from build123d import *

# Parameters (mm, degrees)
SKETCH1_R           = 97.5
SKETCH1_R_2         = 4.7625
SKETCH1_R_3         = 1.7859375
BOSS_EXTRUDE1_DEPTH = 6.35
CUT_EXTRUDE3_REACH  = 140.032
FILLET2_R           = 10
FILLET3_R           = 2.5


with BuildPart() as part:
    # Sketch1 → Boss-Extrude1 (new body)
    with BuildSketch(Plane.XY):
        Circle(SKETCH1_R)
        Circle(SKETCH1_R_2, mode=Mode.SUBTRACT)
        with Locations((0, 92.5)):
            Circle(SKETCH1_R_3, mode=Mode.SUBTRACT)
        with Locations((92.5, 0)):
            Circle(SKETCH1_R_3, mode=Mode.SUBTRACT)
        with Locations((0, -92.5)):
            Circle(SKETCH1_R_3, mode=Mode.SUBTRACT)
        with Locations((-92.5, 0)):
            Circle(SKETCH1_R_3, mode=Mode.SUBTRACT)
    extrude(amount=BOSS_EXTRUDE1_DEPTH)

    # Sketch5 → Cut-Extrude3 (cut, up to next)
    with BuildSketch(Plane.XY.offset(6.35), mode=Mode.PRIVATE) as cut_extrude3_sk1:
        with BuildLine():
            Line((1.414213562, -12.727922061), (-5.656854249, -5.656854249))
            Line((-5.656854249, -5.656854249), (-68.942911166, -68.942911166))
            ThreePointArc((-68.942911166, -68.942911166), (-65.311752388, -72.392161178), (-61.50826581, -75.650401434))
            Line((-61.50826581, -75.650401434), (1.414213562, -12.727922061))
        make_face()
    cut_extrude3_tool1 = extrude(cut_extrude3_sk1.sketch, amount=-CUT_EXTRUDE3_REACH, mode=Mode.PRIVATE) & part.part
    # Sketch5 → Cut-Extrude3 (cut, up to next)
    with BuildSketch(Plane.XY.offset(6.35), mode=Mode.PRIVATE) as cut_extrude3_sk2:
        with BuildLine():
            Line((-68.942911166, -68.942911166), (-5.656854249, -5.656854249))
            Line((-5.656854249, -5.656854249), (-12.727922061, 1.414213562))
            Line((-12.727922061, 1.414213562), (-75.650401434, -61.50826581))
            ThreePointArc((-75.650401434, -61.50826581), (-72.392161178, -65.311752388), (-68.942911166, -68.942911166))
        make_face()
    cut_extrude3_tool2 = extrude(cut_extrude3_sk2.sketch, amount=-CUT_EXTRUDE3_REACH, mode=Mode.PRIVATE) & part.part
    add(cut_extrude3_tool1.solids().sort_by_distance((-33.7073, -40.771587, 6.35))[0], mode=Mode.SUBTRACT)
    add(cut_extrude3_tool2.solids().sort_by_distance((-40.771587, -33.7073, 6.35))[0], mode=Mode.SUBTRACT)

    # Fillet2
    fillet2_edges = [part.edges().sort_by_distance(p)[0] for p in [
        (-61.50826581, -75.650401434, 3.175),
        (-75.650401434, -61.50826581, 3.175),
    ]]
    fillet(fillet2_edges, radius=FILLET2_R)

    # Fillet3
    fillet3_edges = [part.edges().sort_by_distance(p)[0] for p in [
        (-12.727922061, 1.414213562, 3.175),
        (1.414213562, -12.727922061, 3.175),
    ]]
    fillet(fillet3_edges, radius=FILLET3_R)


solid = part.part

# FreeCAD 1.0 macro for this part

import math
import FreeCAD as App
import Part
import Sketcher
Q = App.Units.Quantity


def edges_at(feature, points):
    """Names of the edges that pass closest to the given points."""
    edges = feature.Shape.Edges
    near = lambda p: min(range(len(edges)), key=lambda i: edges[i].distToShape(Part.Vertex(*p))[0])
    return sorted({f"Edge{near(p) + 1}" for p in points})

doc = App.newDocument("Part")
body = doc.addObject("PartDesign::Body", "Body")

# Sketch on XY plane
sketch1 = doc.addObject("Sketcher::SketchObject", "Sketch")
body.addObject(sketch1)
sketch1.AttachmentSupport = (doc.XY_Plane, [""])
sketch1.MapMode = "FlatFace"
sketch1.addGeometry([
    Part.Circle(App.Vector(0, 0, 0), App.Vector(0, 0, 1), 97.5),  # 0
    Part.Circle(App.Vector(0, -92.5, 0), App.Vector(0, 0, 1), 1.8),  # 1
    Part.Circle(App.Vector(-92.5, 0, 0), App.Vector(0, 0, 1), 1.8),  # 2
    Part.Circle(App.Vector(0, 0, 0), App.Vector(0, 0, 1), 4.8),  # 3
    Part.Circle(App.Vector(0, 92.5, 0), App.Vector(0, 0, 1), 1.8),  # 4
    Part.Circle(App.Vector(92.5, 0, 0), App.Vector(0, 0, 1), 1.8),  # 5
], False)
sketch1.addConstraint([
    Sketcher.Constraint("Coincident", 0, 3, -1, 1),
    Sketcher.Constraint("Coincident", 3, 3, -1, 1),
    Sketcher.Constraint("Equal", 1, 2),
    Sketcher.Constraint("Equal", 2, 4),
    Sketcher.Constraint("Equal", 4, 5),
    Sketcher.Constraint("Symmetric", 1, 3, 4, 3, -1, 1),
    Sketcher.Constraint("Symmetric", 2, 3, 5, 3, -1, 1),
    Sketcher.Constraint("PointOnObject", 1, 3, -2),
    Sketcher.Constraint("PointOnObject", 2, 3, -1),
    Sketcher.Constraint("Diameter", 0, Q("195 mm")),
    Sketcher.Constraint("Diameter", 3, Q("9.525 mm")),
    Sketcher.Constraint("DistanceY", 1, 3, 4, 3, Q("185 mm")),
    Sketcher.Constraint("DistanceX", 2, 3, 5, 3, Q("185 mm")),
    Sketcher.Constraint("Diameter", 1, Q("3.571875 mm")),
])
pad1 = doc.addObject("PartDesign::Pad", "Pad")
body.addObject(pad1)
pad1.Profile = sketch1
pad1.Length = 6.35

# Sketch on XY plane
sketch2 = doc.addObject("Sketcher::SketchObject", "Sketch001")
body.addObject(sketch2)
sketch2.AttachmentSupport = (doc.XY_Plane, [""])
sketch2.MapMode = "FlatFace"
sketch2.AttachmentOffset = App.Placement(App.Vector(0, 0, 6.35), App.Rotation())
sketch2.addGeometry([
    Part.LineSegment(App.Vector(1, -13, 0), App.Vector(-6, -6, 0)),
    Part.LineSegment(App.Vector(-6, -6, 0), App.Vector(-69, -69, 0)),
    Part.ArcOfCircle(Part.Circle(App.Vector(0, 0, 0), App.Vector(0, 0, 1), 98), math.radians(-135), math.radians(-129.11)),
    Part.LineSegment(App.Vector(-62, -76, 0), App.Vector(1, -13, 0)),
], False)
sketch2.addConstraint([
    Sketcher.Constraint("Coincident", 0, 2, 1, 1),
    Sketcher.Constraint("Coincident", 1, 2, 2, 1),
    Sketcher.Constraint("Coincident", 2, 2, 3, 1),
    Sketcher.Constraint("Coincident", 3, 2, 0, 1),
    Sketcher.Constraint("Coincident", 2, 3, -1, 1),
    Sketcher.Constraint("Perpendicular", 0, 1),
    Sketcher.Constraint("Parallel", 1, 3),
    Sketcher.Constraint("Radius", 2, Q("97.5 mm")),
    Sketcher.Constraint("Angle", 0, Q("135 deg")),
    Sketcher.Constraint("Distance", 0, Q("10 mm")),
    Sketcher.Constraint("Distance", 1, Q("89.5 mm")),
    Sketcher.Constraint("DistanceY", 2, 2, -1, 1, Q("75.650401 mm")),
])
pocket1 = doc.addObject("PartDesign::Pocket", "Pocket")
body.addObject(pocket1)
pocket1.Profile = sketch2
pocket1.Type = "UpToFirst"

# Sketch on XY plane
sketch3 = doc.addObject("Sketcher::SketchObject", "Sketch002")
body.addObject(sketch3)
sketch3.AttachmentSupport = (doc.XY_Plane, [""])
sketch3.MapMode = "FlatFace"
sketch3.AttachmentOffset = App.Placement(App.Vector(0, 0, 6.35), App.Rotation())
sketch3.addGeometry([
    Part.LineSegment(App.Vector(-69, -69, 0), App.Vector(-6, -6, 0)),
    Part.LineSegment(App.Vector(-6, -6, 0), App.Vector(-13, 1, 0)),
    Part.LineSegment(App.Vector(-13, 1, 0), App.Vector(-76, -62, 0)),
    Part.ArcOfCircle(Part.Circle(App.Vector(0, 0, 0), App.Vector(0, 0, 1), 98), math.radians(-140.89), math.radians(-135)),
], False)
sketch3.addConstraint([
    Sketcher.Constraint("Coincident", 0, 2, 1, 1),
    Sketcher.Constraint("Coincident", 1, 2, 2, 1),
    Sketcher.Constraint("Coincident", 2, 2, 3, 1),
    Sketcher.Constraint("Coincident", 3, 2, 0, 1),
    Sketcher.Constraint("Coincident", 3, 3, -1, 1),
    Sketcher.Constraint("Perpendicular", 0, 1),
    Sketcher.Constraint("Perpendicular", 1, 2),
    Sketcher.Constraint("Radius", 3, Q("97.5 mm")),
    Sketcher.Constraint("Angle", 0, Q("45 deg")),
    Sketcher.Constraint("Distance", 1, Q("10 mm")),
    Sketcher.Constraint("Distance", 0, Q("89.5 mm")),
    Sketcher.Constraint("DistanceX", 2, 2, -1, 1, Q("75.650401 mm")),
])
pocket2 = doc.addObject("PartDesign::Pocket", "Pocket001")
body.addObject(pocket2)
pocket2.Profile = sketch3
pocket2.Type = "UpToFirst"
doc.recompute()

fillet = doc.addObject("PartDesign::Fillet", "Fillet")
body.addObject(fillet)
fillet.Base = (pocket2, edges_at(pocket2, [(-61.508, -75.65, 3.175), (-75.65, -61.508, 3.175)]))
fillet.Radius = 10
doc.recompute()

fillet2 = doc.addObject("PartDesign::Fillet", "Fillet001")
body.addObject(fillet2)
fillet2.Base = (fillet, edges_at(fillet, [(-12.728, 1.414, 3.175), (1.414, -12.728, 3.175)]))
fillet2.Radius = 2.5

doc.recompute()
